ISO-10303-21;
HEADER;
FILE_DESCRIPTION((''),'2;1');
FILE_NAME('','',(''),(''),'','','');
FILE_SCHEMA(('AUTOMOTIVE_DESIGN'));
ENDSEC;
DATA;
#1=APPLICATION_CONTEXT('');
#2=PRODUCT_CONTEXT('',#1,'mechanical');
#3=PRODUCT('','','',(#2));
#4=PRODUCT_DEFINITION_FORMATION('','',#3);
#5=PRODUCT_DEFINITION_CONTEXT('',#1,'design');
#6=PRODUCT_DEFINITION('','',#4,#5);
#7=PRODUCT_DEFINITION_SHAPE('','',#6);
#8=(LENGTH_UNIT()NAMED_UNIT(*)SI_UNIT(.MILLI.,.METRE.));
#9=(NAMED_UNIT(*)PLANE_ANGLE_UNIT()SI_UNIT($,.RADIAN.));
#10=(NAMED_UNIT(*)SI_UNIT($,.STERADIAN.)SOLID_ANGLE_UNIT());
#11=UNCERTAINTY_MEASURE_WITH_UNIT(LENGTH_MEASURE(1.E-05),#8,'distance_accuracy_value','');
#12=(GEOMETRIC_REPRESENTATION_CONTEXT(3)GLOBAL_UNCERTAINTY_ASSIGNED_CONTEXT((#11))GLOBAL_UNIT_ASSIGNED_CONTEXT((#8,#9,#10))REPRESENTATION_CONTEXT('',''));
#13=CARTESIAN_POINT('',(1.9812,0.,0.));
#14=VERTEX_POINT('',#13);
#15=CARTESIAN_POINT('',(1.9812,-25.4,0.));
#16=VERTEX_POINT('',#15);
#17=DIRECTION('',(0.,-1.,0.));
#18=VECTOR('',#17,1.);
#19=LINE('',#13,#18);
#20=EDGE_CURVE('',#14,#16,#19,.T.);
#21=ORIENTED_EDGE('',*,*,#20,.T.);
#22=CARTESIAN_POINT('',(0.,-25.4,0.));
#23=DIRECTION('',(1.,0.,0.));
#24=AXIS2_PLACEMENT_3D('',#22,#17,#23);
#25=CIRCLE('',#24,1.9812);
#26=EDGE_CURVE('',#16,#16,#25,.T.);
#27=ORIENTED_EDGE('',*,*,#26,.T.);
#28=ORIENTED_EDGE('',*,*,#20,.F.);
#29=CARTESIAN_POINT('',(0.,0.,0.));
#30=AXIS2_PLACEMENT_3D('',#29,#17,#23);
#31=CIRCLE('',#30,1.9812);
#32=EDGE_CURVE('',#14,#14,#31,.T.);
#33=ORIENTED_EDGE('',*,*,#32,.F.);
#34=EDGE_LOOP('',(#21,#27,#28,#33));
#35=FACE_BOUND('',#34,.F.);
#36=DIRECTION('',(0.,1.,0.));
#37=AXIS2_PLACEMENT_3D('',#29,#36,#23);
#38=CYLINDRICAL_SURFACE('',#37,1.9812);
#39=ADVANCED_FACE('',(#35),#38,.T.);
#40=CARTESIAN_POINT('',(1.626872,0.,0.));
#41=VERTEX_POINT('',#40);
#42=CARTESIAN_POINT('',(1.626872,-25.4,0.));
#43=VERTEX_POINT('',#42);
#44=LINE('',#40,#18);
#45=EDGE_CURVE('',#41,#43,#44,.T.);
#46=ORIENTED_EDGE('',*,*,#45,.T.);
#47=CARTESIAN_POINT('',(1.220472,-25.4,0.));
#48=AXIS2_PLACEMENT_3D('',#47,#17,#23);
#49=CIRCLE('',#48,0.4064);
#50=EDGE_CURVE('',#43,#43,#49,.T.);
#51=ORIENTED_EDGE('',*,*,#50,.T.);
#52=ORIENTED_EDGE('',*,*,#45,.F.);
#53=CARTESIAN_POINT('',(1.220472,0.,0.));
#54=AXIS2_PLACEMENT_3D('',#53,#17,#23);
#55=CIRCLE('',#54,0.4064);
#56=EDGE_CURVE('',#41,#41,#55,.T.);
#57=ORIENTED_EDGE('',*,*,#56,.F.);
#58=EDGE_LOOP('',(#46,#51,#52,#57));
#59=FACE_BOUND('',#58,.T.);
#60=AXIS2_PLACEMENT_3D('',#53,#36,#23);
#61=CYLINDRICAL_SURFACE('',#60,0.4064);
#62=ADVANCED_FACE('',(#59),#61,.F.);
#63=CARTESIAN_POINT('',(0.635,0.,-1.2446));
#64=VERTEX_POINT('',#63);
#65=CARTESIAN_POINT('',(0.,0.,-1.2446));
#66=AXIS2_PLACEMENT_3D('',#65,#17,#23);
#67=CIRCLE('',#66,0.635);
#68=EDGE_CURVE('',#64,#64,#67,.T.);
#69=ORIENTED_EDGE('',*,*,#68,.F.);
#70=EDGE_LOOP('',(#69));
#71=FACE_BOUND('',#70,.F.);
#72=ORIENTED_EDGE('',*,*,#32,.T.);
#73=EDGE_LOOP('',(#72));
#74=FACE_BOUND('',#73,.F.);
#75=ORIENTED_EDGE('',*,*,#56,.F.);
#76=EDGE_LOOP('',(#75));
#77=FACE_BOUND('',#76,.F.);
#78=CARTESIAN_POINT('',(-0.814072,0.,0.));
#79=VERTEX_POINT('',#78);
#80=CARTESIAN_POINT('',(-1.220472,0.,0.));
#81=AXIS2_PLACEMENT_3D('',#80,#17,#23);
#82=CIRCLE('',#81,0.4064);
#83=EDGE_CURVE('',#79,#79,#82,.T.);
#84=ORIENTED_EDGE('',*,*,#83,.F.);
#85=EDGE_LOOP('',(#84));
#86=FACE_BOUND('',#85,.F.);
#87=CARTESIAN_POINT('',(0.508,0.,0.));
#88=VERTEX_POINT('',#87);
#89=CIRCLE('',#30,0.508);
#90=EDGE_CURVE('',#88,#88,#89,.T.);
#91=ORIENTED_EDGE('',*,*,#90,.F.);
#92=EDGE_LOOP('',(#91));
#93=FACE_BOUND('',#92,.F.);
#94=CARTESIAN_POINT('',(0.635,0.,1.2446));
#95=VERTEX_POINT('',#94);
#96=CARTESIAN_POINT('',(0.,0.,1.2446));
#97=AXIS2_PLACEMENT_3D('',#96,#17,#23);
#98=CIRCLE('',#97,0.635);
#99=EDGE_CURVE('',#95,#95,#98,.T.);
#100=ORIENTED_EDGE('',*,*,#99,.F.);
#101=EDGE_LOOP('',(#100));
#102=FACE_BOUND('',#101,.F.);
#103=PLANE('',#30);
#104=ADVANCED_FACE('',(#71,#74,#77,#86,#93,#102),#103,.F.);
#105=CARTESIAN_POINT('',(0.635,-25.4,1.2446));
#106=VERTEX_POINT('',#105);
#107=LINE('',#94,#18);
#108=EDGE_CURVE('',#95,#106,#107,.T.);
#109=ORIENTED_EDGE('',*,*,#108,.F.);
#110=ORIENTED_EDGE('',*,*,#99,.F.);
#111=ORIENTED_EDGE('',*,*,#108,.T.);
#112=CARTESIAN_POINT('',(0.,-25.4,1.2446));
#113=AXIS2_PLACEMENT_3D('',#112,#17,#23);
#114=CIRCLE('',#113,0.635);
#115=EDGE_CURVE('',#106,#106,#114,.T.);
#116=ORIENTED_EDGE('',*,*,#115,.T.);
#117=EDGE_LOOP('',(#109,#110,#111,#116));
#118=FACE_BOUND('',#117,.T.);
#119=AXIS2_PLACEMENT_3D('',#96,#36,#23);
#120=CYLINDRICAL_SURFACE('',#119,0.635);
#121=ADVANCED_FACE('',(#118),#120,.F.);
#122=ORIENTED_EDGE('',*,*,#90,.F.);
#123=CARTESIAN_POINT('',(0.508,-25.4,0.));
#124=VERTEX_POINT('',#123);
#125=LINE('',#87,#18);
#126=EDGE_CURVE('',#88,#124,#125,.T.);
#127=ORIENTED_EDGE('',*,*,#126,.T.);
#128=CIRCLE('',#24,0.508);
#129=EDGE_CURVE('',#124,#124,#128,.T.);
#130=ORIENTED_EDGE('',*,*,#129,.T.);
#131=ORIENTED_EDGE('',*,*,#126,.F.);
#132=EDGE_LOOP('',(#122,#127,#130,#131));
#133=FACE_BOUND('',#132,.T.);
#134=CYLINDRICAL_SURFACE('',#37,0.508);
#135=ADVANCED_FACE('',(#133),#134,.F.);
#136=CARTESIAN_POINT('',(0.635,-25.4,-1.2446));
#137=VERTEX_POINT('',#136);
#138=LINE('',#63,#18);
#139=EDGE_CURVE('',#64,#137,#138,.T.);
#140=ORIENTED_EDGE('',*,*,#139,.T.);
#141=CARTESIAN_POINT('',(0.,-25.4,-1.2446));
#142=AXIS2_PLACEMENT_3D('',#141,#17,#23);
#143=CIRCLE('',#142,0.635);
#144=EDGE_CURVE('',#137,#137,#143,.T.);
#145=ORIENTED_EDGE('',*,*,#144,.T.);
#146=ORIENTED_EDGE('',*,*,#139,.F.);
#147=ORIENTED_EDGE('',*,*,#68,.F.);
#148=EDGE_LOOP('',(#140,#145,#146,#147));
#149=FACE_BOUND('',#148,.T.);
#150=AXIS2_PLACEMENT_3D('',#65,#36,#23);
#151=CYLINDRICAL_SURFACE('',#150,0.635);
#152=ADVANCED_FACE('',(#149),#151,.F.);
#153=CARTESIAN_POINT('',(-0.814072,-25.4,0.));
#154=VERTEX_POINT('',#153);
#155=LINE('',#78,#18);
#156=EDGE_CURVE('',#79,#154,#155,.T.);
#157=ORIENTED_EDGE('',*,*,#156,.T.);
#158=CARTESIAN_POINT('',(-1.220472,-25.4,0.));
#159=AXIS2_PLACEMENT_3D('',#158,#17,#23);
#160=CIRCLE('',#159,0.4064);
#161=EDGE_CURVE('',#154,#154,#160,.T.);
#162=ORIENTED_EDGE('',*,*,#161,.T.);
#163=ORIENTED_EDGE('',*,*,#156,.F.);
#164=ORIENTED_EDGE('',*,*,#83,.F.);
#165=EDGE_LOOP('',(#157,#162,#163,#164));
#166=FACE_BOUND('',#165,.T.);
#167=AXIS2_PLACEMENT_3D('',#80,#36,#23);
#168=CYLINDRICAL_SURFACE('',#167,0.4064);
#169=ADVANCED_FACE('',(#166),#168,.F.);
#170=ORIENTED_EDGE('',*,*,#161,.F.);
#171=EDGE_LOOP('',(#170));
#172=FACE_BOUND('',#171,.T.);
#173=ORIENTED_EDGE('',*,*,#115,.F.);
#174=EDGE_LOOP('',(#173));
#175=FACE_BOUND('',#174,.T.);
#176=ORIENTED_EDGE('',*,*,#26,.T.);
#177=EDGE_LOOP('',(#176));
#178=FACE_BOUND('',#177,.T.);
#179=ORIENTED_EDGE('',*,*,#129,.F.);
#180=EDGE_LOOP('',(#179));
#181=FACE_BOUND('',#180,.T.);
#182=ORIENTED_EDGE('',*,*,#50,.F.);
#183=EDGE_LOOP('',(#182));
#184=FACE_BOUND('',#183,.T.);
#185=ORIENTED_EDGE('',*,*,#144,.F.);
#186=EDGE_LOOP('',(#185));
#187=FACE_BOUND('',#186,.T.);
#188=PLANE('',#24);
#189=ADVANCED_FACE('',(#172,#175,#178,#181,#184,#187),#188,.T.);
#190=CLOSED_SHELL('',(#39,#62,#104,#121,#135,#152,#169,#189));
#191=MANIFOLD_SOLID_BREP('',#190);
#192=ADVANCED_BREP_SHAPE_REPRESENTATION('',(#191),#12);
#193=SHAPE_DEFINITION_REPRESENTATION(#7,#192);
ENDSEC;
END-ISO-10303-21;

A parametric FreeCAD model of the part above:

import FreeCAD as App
import Part
import Sketcher

V = App.Vector
Q = App.Units.Quantity

doc = App.newDocument("Part")
body = doc.addObject("PartDesign::Body", "Body")

sketch1 = body.newObject("Sketcher::SketchObject", "Sketch")
sketch1.AttachmentSupport = (doc.getObject("XZ_Plane"), [""])
sketch1.MapMode = "FlatFace"
sketch1.addGeometry([
    Part.Circle(V(0, 0, 0), V(0, 0, 1), 1.9812),
    Part.Circle(V(0, -1.2446, 0), V(0, 0, 1), 0.635),
    Part.Circle(V(-1.220472, 0, 0), V(0, 0, 1), 0.4064),
    Part.Circle(V(0, 0, 0), V(0, 0, 1), 0.508),
    Part.Circle(V(1.220472, 0, 0), V(0, 0, 1), 0.4064),
    Part.Circle(V(0, 1.2446, 0), V(0, 0, 1), 0.635),
], False)
sketch1.addConstraint([
    Sketcher.Constraint("Coincident", 0, 3, -1, 1),
    Sketcher.Constraint("Coincident", 3, 3, -1, 1),
    Sketcher.Constraint("Equal", 2, 4),
    Sketcher.Constraint("Equal", 1, 5),
    Sketcher.Constraint("Symmetric", 2, 3, 4, 3, -1, 1),
    Sketcher.Constraint("Symmetric", 1, 3, 5, 3, -1, 1),
    Sketcher.Constraint("PointOnObject", 1, 3, -2),
    Sketcher.Constraint("PointOnObject", 2, 3, -1),
    Sketcher.Constraint("Diameter", 1, Q("0.05 in")),
    Sketcher.Constraint("Diameter", 3, Q("0.04 in")),
    Sketcher.Constraint("Diameter", 0, Q("0.156 in")),
    Sketcher.Constraint("Diameter", 2, Q("0.032 in")),
    Sketcher.Constraint("DistanceY", 1, 3, -1, 1, Q("0.049 in")),
    Sketcher.Constraint("DistanceX", 2, 3, 4, 3, Q("0.0961002 in")),
])
pad1 = body.newObject("PartDesign::Pad", "Pad")
pad1.Profile = sketch1
pad1.Length = Q("1 in")

doc.recompute()
